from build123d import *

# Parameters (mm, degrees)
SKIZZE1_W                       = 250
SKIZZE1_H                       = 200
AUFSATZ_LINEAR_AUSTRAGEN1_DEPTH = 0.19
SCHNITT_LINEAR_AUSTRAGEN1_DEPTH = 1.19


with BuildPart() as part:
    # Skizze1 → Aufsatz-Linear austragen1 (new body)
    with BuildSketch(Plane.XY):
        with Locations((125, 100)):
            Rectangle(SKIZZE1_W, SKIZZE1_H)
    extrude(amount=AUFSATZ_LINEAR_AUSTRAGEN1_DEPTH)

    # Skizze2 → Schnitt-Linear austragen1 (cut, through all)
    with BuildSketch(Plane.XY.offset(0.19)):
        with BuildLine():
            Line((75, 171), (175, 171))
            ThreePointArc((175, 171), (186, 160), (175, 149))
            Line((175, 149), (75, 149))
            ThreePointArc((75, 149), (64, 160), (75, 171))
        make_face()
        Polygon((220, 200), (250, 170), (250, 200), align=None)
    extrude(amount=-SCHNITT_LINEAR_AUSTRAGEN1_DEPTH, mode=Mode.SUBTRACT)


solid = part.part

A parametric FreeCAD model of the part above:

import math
import FreeCAD as App
import Part
import Sketcher
from FreeCAD import Vector

doc = App.newDocument("Part")
body = doc.addObject("PartDesign::Body", "Body")

# Sketch on XY plane
sketch1 = body.newObject("Sketcher::SketchObject", "Sketch")
sketch1.AttachmentSupport = (doc.getObject("XY_Plane"), [""])
sketch1.MapMode = "FlatFace"
sketch1.addGeometry([
    Part.LineSegment(Vector(0, 200, 0), Vector(0, 0, 0)),
    Part.LineSegment(Vector(0, 0, 0), Vector(250, 0, 0)),
    Part.LineSegment(Vector(250, 0, 0), Vector(250, 200, 0)),
    Part.LineSegment(Vector(250, 200, 0), Vector(0, 200, 0)),
], False)
sketch1.addConstraint([
    Sketcher.Constraint("Coincident", 0, 2, 1, 1),
    Sketcher.Constraint("Coincident", 1, 2, 2, 1),
    Sketcher.Constraint("Coincident", 2, 2, 3, 1),
    Sketcher.Constraint("Coincident", 3, 2, 0, 1),
    Sketcher.Constraint("Vertical", 0),
    Sketcher.Constraint("Horizontal", 1),
    Sketcher.Constraint("Vertical", 2),
    Sketcher.Constraint("Horizontal", 3),
    Sketcher.Constraint("Coincident", 0, 2, -1, 1),
    Sketcher.Constraint("DistanceX", 1, 1, 1, 2, 250.0),
    Sketcher.Constraint("DistanceY", 0, 2, 0, 1, 200.0),
])
pad1 = body.newObject("PartDesign::Pad", "Pad")
pad1.Profile = sketch1
pad1.Length = 0.19

# Sketch on XY plane
sketch2 = body.newObject("Sketcher::SketchObject", "Sketch001")
sketch2.AttachmentSupport = (doc.getObject("XY_Plane"), [""])
sketch2.MapMode = "FlatFace"
sketch2.AttachmentOffset = App.Placement(Vector(0, 0, 0.19), App.Rotation())
sketch2.addGeometry([
    Part.LineSegment(Vector(175, 171, 0), Vector(75, 171, 0)),  # 0
    Part.ArcOfCircle(Part.Circle(Vector(75, 160, 0), Vector(0, 0, 1), 11), math.radians(90), math.radians(270)),  # 1
    Part.LineSegment(Vector(75, 149, 0), Vector(175, 149, 0)),  # 2
    Part.ArcOfCircle(Part.Circle(Vector(175, 160, 0), Vector(0, 0, 1), 11), math.radians(-90), math.radians(90)),  # 3
    Part.LineSegment(Vector(220, 200, 0), Vector(250, 170, 0)),  # 4
    Part.LineSegment(Vector(250, 170, 0), Vector(250, 200, 0)),  # 5
    Part.LineSegment(Vector(250, 200, 0), Vector(220, 200, 0)),  # 6
], False)
sketch2.addConstraint([
    Sketcher.Constraint("Tangent", 0, 2, 1, 1),
    Sketcher.Constraint("Tangent", 1, 2, 2, 1),
    Sketcher.Constraint("Tangent", 2, 2, 3, 1),
    Sketcher.Constraint("Tangent", 3, 2, 0, 1),
    Sketcher.Constraint("Coincident", 4, 2, 5, 1),
    Sketcher.Constraint("Coincident", 5, 2, 6, 1),
    Sketcher.Constraint("Coincident", 6, 2, 4, 1),
    Sketcher.Constraint("Horizontal", 0),
    Sketcher.Constraint("Horizontal", 2),
    Sketcher.Constraint("Vertical", 5),
    Sketcher.Constraint("Horizontal", 6),
    Sketcher.Constraint("Equal", 6, 5),
    Sketcher.Constraint("Radius", 1, 11.0),
    Sketcher.Constraint("DistanceX", 0, 2, 0, 1, 100.0),
    Sketcher.Constraint("DistanceX", 6, 2, 6, 1, 30.0),
    Sketcher.Constraint("DistanceX", -1, 1, 1, 3, 75.0),
    Sketcher.Constraint("DistanceY", -1, 1, 1, 3, 160.0),
    Sketcher.Constraint("DistanceX", -1, 1, 4, 2, 250.0),
    Sketcher.Constraint("DistanceY", -1, 1, 4, 2, 170.0),
])
pocket1 = body.newObject("PartDesign::Pocket", "Pocket")
pocket1.Profile = sketch2
pocket1.Type = "ThroughAll"

doc.recompute()
